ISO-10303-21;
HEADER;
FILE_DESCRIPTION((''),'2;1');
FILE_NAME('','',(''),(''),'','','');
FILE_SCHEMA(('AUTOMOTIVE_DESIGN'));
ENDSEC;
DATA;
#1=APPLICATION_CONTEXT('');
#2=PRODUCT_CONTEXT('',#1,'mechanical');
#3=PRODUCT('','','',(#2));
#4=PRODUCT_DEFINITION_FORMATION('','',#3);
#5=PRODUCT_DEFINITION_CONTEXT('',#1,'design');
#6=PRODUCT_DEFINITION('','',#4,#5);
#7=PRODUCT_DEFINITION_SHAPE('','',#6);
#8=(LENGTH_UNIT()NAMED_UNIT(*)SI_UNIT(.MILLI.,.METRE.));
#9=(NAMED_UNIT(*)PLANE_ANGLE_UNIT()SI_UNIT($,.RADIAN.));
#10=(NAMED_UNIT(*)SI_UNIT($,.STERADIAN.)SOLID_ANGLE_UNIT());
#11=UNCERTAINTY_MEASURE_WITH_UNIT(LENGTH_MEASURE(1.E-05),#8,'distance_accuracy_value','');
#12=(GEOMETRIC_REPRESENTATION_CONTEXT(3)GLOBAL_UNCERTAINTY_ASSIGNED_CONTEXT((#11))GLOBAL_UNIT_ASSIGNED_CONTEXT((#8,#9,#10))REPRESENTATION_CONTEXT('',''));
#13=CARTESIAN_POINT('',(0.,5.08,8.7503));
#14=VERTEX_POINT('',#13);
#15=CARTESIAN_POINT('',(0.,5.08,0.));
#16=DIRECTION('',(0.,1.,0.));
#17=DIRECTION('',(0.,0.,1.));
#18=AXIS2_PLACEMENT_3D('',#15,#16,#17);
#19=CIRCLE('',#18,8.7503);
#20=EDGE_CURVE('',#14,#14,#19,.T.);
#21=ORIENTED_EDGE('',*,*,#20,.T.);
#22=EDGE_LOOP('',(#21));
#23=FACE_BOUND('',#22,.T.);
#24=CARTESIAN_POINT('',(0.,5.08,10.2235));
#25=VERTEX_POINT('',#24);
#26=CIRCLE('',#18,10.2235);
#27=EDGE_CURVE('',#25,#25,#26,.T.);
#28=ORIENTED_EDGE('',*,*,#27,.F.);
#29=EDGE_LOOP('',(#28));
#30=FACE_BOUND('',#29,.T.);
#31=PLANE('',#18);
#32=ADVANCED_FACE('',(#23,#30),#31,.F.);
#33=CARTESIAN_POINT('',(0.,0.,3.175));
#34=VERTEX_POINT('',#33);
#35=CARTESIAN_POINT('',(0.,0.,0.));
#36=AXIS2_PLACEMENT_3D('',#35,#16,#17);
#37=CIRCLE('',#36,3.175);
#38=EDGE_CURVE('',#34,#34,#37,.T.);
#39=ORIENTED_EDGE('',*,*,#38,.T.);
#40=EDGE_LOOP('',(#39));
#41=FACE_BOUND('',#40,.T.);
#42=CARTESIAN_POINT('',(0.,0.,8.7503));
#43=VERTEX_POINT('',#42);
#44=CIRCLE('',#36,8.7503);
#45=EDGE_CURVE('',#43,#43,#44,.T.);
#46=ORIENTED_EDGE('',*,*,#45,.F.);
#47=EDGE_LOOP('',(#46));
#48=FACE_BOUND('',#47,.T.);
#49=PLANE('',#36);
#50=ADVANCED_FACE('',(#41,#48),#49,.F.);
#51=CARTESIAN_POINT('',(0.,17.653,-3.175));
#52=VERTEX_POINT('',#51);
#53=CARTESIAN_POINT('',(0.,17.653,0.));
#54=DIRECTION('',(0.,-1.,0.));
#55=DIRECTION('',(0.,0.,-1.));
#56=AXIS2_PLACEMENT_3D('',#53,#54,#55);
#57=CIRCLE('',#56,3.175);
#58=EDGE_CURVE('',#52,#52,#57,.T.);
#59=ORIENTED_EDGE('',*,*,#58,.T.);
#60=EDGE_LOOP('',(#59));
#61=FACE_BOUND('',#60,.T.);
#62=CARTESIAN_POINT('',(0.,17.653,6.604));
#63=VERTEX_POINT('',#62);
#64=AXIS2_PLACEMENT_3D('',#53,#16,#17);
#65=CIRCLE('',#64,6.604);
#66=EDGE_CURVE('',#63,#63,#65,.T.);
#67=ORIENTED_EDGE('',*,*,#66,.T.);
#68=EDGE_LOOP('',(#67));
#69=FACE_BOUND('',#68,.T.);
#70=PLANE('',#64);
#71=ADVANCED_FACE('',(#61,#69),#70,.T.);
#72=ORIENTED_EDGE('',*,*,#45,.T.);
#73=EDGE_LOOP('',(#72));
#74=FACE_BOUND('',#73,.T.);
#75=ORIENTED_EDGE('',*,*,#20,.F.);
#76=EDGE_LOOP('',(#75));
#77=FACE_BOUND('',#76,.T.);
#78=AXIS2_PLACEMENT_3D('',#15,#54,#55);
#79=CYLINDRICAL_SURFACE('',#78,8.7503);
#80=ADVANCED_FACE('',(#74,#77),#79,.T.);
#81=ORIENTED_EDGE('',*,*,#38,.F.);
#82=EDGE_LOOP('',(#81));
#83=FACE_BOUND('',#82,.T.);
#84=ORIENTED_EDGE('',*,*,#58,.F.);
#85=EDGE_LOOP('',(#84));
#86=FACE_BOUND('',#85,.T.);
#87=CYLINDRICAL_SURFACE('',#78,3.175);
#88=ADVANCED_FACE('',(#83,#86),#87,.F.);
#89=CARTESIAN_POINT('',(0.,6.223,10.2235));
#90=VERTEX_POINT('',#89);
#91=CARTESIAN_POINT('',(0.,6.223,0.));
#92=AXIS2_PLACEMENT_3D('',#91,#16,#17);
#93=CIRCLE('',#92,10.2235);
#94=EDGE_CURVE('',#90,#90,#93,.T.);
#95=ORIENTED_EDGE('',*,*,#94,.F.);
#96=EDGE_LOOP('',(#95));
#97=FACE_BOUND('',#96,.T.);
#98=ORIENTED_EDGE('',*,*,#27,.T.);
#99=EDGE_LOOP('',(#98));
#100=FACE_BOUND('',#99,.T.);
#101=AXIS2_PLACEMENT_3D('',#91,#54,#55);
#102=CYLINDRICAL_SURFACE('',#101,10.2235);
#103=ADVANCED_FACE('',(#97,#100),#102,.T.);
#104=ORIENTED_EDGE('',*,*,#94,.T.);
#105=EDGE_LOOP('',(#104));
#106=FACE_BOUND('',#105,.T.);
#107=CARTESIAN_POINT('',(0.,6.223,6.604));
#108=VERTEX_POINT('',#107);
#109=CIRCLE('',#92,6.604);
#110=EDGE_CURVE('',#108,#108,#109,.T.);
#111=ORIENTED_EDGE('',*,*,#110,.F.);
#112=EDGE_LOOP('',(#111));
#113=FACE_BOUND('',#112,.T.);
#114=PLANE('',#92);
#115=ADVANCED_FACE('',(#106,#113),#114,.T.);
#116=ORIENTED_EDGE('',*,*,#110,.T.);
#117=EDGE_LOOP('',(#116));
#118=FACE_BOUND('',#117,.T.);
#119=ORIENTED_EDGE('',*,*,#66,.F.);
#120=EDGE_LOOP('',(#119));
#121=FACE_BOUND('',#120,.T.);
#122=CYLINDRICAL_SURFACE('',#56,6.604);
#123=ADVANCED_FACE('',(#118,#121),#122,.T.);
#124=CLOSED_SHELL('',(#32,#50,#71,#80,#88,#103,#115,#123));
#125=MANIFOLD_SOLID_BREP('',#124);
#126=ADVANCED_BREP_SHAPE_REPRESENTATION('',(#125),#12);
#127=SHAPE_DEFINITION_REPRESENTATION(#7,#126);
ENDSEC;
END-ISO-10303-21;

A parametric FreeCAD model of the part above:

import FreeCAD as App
import Part
import Sketcher
Q = App.Units.Quantity

doc = App.newDocument("Part")
body = doc.addObject("PartDesign::Body", "Body")

# Sketch on XZ plane
sketch1 = body.newObject("Sketcher::SketchObject", "Sketch")
sketch1.AttachmentSupport = (doc.getObject("XZ_Plane"), [""])
sketch1.MapMode = "FlatFace"
sketch1.addGeometry([
    Part.Circle(App.Vector(0, 0, 0), App.Vector(0, 0, 1), 8.7503),
    Part.Circle(App.Vector(0, 0, 0), App.Vector(0, 0, 1), 3.175),
], False)
sketch1.addConstraint([
    Sketcher.Constraint("Coincident", 0, 3, -1, 1),
    Sketcher.Constraint("Coincident", 1, 3, -1, 1),
    Sketcher.Constraint("Diameter", 1, Q("0.25 in")),
    Sketcher.Constraint("Diameter", 0, Q("0.689 in")),
])
pad1 = body.newObject("PartDesign::Pad", "Pad")
pad1.Profile = sketch1
pad1.Length = Q("0.2 in")
pad1.Reversed = True

# Sketch on XZ plane
sketch2 = body.newObject("Sketcher::SketchObject", "Sketch001")
sketch2.AttachmentSupport = (doc.getObject("XZ_Plane"), [""])
sketch2.MapMode = "FlatFace"
sketch2.AttachmentOffset = App.Placement(App.Vector(0, 0, -0.2 * 25.4), App.Rotation())
sketch2.addGeometry([
    Part.Circle(App.Vector(0, 0, 0), App.Vector(0, 0, 1), 10.2235),
    Part.Circle(App.Vector(0, 0, 0), App.Vector(0, 0, 1), 3.175),
], False)
sketch2.addConstraint([
    Sketcher.Constraint("Coincident", 0, 3, -1, 1),
    Sketcher.Constraint("Coincident", 1, 3, -1, 1),
    Sketcher.Constraint("Diameter", 1, Q("0.25 in")),
    Sketcher.Constraint("Diameter", 0, Q("0.805 in")),
])
pad2 = body.newObject("PartDesign::Pad", "Pad001")
pad2.Profile = sketch2
pad2.Length = Q("0.045 in")
pad2.Reversed = True

# Sketch on XZ plane
sketch3 = body.newObject("Sketcher::SketchObject", "Sketch002")
sketch3.AttachmentSupport = (doc.getObject("XZ_Plane"), [""])
sketch3.MapMode = "FlatFace"
sketch3.AttachmentOffset = App.Placement(App.Vector(0, 0, -0.245 * 25.4), App.Rotation())
sketch3.addGeometry(Part.Circle(App.Vector(0, 0, 0), App.Vector(0, 0, 1), 6.604), False)
sketch3.addConstraint([
    Sketcher.Constraint("Coincident", 0, 3, -1, 1),
    Sketcher.Constraint("Diameter", 0, Q("0.52 in")),
])
pad3 = body.newObject("PartDesign::Pad", "Pad002")
pad3.Profile = sketch3
pad3.Length = Q("0.45 in")
pad3.Reversed = True

# Sketch on XZ plane
sketch4 = body.newObject("Sketcher::SketchObject", "Sketch003")
sketch4.AttachmentSupport = (doc.getObject("XZ_Plane"), [""])
sketch4.MapMode = "FlatFace"
sketch4.AttachmentOffset = App.Placement(App.Vector(0, 0, -0.245 * 25.4), App.Rotation())
sketch4.addGeometry(Part.Circle(App.Vector(0, 0, 0), App.Vector(0, 0, 1), 3.175), False)
sketch4.addConstraint([
    Sketcher.Constraint("Coincident", 0, 3, -1, 1),
    Sketcher.Constraint("Diameter", 0, Q("0.25 in")),
])
pocket1 = body.newObject("PartDesign::Pocket", "Pocket")
pocket1.Profile = sketch4
pocket1.Type = "ThroughAll"

doc.recompute()
